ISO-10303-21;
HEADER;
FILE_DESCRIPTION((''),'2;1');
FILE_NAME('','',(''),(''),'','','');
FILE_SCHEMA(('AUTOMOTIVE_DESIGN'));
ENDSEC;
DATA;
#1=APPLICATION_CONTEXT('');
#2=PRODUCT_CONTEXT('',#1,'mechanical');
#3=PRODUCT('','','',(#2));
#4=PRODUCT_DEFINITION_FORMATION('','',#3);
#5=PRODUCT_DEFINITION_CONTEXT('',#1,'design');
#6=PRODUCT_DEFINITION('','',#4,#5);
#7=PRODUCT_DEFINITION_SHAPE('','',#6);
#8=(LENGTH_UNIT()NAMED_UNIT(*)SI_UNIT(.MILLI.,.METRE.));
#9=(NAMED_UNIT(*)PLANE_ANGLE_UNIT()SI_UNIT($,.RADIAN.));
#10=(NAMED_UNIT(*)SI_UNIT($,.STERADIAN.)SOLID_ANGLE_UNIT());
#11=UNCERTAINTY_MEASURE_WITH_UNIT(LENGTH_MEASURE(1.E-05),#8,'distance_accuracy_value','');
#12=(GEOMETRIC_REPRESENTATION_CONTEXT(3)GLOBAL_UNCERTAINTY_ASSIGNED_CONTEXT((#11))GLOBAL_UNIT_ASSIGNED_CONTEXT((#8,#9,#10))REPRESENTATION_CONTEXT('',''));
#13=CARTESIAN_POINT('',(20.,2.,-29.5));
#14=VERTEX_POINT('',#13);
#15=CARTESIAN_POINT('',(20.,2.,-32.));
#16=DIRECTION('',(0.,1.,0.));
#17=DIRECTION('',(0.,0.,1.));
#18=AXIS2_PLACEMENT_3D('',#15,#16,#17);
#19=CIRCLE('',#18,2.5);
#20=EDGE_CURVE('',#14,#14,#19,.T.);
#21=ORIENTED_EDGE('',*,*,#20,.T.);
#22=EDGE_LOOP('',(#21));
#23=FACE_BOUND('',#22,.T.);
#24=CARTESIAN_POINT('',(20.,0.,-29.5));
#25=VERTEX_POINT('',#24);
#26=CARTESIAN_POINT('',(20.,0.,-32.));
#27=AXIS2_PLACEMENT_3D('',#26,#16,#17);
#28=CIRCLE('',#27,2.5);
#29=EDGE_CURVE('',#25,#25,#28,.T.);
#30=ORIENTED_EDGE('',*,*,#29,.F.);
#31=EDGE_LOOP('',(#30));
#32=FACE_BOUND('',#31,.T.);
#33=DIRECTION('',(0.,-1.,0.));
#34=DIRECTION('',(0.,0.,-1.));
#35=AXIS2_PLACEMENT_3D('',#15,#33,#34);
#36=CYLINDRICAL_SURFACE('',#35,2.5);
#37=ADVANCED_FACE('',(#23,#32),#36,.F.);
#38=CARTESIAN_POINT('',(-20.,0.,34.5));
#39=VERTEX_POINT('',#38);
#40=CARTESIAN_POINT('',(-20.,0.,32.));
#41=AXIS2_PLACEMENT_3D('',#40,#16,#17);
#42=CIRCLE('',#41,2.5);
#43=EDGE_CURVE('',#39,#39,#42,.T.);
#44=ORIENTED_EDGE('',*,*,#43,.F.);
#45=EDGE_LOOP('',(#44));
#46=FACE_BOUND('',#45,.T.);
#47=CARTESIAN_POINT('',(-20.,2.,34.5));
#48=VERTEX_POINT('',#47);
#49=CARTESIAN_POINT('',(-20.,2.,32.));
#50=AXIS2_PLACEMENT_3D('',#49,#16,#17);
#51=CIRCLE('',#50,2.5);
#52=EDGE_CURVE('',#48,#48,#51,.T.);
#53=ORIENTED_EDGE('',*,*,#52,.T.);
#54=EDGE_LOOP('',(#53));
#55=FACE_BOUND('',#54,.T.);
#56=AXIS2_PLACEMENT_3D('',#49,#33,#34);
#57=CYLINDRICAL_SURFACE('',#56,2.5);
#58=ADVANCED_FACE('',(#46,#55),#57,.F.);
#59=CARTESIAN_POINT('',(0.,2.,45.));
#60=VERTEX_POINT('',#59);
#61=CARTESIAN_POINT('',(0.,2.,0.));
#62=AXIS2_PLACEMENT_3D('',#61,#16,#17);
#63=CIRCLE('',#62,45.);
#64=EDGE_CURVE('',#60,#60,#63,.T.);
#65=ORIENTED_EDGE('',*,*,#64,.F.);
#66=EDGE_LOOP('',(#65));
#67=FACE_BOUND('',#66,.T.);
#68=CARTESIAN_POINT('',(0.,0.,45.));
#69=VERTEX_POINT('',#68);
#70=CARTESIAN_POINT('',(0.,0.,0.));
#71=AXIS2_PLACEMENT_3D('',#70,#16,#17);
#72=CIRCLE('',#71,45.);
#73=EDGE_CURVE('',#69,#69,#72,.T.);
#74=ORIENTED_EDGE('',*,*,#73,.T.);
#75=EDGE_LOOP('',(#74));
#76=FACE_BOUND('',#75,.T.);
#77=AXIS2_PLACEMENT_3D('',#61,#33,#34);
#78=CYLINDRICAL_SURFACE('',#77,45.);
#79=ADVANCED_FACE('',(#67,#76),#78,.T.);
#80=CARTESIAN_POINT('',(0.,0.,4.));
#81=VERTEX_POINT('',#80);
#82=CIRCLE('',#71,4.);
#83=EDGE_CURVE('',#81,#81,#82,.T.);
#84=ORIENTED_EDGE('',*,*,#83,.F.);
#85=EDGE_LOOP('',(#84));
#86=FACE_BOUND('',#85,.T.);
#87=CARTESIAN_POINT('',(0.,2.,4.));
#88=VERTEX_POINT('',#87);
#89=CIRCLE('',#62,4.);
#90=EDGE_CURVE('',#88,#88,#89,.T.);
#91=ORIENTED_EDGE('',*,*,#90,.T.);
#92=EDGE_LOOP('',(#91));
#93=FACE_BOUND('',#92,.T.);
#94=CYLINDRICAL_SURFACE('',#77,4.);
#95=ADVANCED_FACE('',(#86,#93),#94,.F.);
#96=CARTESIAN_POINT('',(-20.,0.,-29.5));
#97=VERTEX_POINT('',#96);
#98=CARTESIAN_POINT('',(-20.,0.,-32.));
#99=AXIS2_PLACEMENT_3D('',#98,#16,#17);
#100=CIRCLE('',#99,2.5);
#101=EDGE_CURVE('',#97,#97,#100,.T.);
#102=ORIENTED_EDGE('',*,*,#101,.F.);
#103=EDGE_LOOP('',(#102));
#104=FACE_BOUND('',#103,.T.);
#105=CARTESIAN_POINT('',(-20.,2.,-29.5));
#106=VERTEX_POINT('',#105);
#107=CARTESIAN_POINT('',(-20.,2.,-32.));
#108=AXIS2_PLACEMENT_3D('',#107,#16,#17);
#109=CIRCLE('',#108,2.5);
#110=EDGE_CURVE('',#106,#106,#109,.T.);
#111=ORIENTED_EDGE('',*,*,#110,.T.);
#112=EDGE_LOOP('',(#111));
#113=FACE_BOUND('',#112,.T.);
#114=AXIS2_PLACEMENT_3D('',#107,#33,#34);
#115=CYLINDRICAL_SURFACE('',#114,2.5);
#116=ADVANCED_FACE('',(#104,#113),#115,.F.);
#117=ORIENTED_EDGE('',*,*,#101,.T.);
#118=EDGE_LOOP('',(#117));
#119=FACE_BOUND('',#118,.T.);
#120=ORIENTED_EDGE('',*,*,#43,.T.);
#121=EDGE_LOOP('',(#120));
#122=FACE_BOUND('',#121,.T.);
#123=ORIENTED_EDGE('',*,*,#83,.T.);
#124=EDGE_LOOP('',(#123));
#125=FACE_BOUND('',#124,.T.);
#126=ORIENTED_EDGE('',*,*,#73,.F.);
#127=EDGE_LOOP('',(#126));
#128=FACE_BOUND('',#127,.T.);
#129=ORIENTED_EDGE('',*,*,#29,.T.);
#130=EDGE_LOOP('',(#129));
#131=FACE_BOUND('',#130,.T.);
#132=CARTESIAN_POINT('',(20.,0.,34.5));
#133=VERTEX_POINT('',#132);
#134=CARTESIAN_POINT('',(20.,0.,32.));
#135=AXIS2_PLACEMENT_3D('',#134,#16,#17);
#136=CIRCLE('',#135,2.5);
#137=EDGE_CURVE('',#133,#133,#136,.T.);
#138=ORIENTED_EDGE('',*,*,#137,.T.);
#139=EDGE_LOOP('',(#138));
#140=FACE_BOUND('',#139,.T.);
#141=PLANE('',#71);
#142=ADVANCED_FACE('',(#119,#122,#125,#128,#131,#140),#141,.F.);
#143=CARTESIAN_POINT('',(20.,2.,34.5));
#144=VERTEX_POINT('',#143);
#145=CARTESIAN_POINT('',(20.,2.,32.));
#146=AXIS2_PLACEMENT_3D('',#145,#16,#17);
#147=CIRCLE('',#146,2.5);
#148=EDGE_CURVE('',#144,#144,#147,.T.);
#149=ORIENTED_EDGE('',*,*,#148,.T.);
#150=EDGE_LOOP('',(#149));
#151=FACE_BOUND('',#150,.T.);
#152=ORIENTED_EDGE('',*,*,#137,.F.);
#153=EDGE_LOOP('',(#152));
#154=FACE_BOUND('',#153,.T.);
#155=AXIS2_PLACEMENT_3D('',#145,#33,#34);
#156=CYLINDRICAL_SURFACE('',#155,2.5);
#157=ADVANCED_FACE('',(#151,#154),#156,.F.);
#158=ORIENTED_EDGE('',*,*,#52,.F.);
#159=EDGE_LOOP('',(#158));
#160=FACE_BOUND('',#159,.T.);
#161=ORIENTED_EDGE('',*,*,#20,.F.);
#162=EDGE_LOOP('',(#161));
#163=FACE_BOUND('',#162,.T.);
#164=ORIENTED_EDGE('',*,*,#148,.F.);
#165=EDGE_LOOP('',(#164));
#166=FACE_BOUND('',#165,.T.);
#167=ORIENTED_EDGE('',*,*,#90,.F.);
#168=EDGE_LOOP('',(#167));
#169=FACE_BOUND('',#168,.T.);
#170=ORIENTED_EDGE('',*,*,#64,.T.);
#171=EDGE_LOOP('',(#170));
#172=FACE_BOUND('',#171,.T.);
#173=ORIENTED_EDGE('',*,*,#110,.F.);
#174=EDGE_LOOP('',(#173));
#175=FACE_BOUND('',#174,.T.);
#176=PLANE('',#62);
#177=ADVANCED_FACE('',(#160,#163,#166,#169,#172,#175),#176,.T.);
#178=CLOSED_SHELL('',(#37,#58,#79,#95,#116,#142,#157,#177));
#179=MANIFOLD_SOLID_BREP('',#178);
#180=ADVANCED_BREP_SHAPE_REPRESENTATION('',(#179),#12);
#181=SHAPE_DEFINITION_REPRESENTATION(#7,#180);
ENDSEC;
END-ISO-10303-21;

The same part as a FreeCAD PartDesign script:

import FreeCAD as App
import Part
import Sketcher
from FreeCAD import Vector
Q = App.Units.Quantity

doc = App.newDocument("Part")
params = doc.addObject("Spreadsheet::Sheet", "Params")
for row, (alias, value) in enumerate([
    ("sketch1_diameter", "90 mm"),
    ("sketch1_diameter2", "5 mm"),
    ("sketch1_diameter3", "8 mm"),
    ("pad1_length", "2 mm"),
], start=1):
    params.set(f"A{row}", alias)
    params.set(f"B{row}", "=" + value)
    params.setAlias(f"B{row}", alias)

body = doc.addObject("PartDesign::Body", "Body")

# Sketch on XZ plane
sketch1 = body.newObject("Sketcher::SketchObject", "Sketch")
sketch1.AttachmentSupport = (doc.getObject("XZ_Plane"), [""])
sketch1.MapMode = "FlatFace"
sketch1.addGeometry([
    Part.Circle(Vector(0, 0, 0), Vector(0, 0, 1), 45),  # 0
    Part.Circle(Vector(-20, 32, 0), Vector(0, 0, 1), 2.5),  # 1
    Part.Circle(Vector(20, 32, 0), Vector(0, 0, 1), 2.5),  # 2
    Part.Circle(Vector(-20, -32, 0), Vector(0, 0, 1), 2.5),  # 3
    Part.Circle(Vector(0, 0, 0), Vector(0, 0, 1), 4),  # 4
    Part.Circle(Vector(20, -32, 0), Vector(0, 0, 1), 2.5),  # 5
], False)
sketch1.addConstraint([
    Sketcher.Constraint("Coincident", 0, 3, -1, 1),
    Sketcher.Constraint("Coincident", 4, 3, -1, 1),
    Sketcher.Constraint("Equal", 1, 2),
    Sketcher.Constraint("Equal", 2, 3),
    Sketcher.Constraint("Equal", 3, 5),
    Sketcher.Constraint("Symmetric", 2, 3, 3, 3, -1, 1),
    Sketcher.Constraint("Symmetric", 1, 3, 5, 3, -1, 1),
    Sketcher.Constraint("Symmetric", 1, 3, 2, 3, -2),
    Sketcher.Constraint("Diameter", 0, Q("90 mm")),
    Sketcher.Constraint("Diameter", 1, Q("5 mm")),
    Sketcher.Constraint("Diameter", 4, Q("8 mm")),
    Sketcher.Constraint("DistanceX", 1, 3, -1, 1, Q("20 mm")),
    Sketcher.Constraint("DistanceY", -1, 1, 1, 3, Q("32 mm")),
])
sketch1.setExpression("Constraints[8]", "Params.sketch1_diameter")
sketch1.setExpression("Constraints[9]", "Params.sketch1_diameter2")
sketch1.setExpression("Constraints[10]", "Params.sketch1_diameter3")
pad1 = body.newObject("PartDesign::Pad", "Pad")
pad1.Profile = sketch1
pad1.setExpression("Length", "Params.pad1_length")
pad1.Reversed = True

doc.recompute()
